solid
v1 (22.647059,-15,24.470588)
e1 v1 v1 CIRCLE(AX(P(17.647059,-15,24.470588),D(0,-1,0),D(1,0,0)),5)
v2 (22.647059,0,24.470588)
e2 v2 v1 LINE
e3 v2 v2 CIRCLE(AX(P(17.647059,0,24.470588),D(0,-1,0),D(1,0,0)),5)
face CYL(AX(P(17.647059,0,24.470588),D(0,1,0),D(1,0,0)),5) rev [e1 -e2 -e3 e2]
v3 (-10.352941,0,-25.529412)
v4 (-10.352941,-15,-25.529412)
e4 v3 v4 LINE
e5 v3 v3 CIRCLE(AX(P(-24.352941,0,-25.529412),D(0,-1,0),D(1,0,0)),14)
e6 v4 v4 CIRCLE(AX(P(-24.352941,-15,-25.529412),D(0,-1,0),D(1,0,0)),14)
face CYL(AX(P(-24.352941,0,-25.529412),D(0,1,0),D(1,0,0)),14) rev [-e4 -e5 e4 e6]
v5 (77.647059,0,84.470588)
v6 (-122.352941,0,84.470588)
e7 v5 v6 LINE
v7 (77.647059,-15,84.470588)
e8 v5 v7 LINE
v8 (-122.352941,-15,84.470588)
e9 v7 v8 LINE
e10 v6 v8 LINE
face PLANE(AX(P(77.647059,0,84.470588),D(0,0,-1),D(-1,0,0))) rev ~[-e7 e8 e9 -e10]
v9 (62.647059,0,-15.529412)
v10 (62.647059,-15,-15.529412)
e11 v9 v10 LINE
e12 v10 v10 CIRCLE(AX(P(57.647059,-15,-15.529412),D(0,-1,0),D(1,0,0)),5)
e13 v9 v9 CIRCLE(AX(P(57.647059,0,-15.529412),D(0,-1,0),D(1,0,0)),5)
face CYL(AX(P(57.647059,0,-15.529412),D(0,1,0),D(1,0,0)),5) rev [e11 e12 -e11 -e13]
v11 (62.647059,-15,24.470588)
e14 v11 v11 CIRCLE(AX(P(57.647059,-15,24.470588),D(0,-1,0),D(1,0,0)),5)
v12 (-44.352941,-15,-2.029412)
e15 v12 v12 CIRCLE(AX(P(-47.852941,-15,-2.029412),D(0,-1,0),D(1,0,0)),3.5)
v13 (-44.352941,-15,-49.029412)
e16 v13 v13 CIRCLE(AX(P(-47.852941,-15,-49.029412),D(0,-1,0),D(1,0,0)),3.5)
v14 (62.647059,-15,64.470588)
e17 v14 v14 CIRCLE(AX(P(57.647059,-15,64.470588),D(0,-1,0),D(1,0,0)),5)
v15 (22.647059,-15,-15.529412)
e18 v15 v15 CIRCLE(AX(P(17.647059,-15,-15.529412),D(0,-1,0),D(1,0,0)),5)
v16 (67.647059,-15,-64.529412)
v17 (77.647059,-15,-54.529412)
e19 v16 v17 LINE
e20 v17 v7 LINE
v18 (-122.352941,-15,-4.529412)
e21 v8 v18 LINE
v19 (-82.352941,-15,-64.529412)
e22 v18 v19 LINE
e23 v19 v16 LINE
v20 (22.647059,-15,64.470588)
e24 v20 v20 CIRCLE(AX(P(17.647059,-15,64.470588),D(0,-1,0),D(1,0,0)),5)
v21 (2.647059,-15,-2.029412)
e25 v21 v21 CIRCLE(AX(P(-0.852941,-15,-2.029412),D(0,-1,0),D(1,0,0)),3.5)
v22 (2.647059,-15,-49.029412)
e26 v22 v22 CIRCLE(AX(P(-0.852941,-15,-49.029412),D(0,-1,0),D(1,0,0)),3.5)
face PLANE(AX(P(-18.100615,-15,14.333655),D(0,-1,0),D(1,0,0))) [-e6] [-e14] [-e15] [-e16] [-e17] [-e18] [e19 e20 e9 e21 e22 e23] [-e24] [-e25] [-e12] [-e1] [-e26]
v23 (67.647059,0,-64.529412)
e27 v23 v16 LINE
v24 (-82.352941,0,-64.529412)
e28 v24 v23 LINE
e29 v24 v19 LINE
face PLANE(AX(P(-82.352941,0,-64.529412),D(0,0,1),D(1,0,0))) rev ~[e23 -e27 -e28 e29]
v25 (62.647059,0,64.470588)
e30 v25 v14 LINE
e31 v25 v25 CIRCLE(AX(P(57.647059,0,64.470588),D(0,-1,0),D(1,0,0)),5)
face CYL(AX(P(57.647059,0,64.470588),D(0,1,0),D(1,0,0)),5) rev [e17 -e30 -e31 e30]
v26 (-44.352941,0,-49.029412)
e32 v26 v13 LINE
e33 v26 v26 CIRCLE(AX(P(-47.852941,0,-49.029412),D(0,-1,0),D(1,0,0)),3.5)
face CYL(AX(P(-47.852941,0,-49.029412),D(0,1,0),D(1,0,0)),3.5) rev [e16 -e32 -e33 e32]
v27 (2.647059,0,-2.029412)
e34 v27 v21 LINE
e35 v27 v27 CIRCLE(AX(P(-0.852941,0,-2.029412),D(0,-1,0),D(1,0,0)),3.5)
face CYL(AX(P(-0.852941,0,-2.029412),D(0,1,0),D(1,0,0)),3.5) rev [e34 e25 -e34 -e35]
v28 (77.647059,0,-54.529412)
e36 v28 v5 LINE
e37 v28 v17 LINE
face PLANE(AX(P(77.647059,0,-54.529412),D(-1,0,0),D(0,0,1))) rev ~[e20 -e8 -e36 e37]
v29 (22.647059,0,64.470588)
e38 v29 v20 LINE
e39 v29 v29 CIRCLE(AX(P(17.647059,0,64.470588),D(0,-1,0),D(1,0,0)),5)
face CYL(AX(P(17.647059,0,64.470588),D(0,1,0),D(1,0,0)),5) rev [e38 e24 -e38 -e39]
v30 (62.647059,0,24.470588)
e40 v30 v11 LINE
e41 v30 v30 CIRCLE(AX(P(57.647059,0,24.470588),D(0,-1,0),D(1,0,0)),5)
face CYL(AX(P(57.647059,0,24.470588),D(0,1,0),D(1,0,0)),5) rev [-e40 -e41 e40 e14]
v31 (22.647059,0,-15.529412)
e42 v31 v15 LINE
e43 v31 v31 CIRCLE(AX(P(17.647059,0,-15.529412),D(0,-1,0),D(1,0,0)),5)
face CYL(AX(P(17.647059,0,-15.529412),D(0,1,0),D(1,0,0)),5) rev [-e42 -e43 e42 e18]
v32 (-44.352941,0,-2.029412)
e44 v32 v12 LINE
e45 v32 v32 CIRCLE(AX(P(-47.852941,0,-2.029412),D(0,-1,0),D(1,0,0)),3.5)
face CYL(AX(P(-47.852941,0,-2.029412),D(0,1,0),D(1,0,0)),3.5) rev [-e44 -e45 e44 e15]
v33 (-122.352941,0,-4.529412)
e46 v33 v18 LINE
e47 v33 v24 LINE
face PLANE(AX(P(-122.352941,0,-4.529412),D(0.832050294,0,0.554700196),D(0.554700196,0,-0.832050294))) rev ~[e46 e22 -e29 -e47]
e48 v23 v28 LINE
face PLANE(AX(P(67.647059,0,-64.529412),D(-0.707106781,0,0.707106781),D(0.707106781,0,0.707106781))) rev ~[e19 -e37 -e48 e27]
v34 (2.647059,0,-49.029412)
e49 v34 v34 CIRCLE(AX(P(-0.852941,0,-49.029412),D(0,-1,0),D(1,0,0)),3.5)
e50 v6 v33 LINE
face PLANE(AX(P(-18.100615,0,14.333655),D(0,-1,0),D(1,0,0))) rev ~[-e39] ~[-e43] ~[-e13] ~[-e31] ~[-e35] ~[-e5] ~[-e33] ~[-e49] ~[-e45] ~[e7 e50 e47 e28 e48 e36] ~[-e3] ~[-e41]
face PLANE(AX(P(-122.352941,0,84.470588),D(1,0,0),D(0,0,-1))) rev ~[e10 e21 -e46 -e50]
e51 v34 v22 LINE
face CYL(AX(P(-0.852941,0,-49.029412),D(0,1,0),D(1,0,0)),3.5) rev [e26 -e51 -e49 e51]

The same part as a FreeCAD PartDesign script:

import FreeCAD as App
import Part
import Sketcher
Q = App.Units.Quantity


def add_polygon(sketch, points):
    """Adds a closed chain of lines whose ends are joined by coincident constraints."""
    first, n = sketch.GeometryCount, len(points)
    for a, b in zip(points, points[1:] + points[:1]):
        sketch.addGeometry(Part.LineSegment(App.Vector(*a, 0), App.Vector(*b, 0)), False)
    for i in range(n):
        sketch.addConstraint(Sketcher.Constraint("Coincident", first + i, 2, first + (i + 1) % n, 1))

doc = App.newDocument("Part")
body = doc.addObject("PartDesign::Body", "Body")

sketch1 = body.newObject("Sketcher::SketchObject", "Sketch")
sketch1.AttachmentSupport = (doc.getObject("XZ_Plane"), [""])
sketch1.MapMode = "FlatFace"
add_polygon(sketch1, [(67.6, -64.5), (77.6, -54.5), (77.6, 84.5), (-122.4, 84.5), (-122.4, -4.5), (-82.4, -64.5)])
sketch1.addGeometry(Part.Circle(App.Vector(-47.9, -49, 0), App.Vector(0, 0, 1), 3.5), False)
sketch1.addGeometry(Part.Circle(App.Vector(-24.4, -25.5, 0), App.Vector(0, 0, 1), 14), False)
sketch1.addGeometry(Part.Circle(App.Vector(-0.9, -49, 0), App.Vector(0, 0, 1), 3.5), False)
sketch1.addGeometry(Part.Circle(App.Vector(-47.9, -2, 0), App.Vector(0, 0, 1), 3.5), False)
sketch1.addGeometry(Part.Circle(App.Vector(-0.9, -2, 0), App.Vector(0, 0, 1), 3.5), False)
sketch1.addGeometry(Part.Circle(App.Vector(17.6, -15.5, 0), App.Vector(0, 0, 1), 5), False)
sketch1.addGeometry(Part.Circle(App.Vector(57.6, -15.5, 0), App.Vector(0, 0, 1), 5), False)
sketch1.addGeometry(Part.Circle(App.Vector(17.6, 24.5, 0), App.Vector(0, 0, 1), 5), False)
sketch1.addGeometry(Part.Circle(App.Vector(57.6, 24.5, 0), App.Vector(0, 0, 1), 5), False)
sketch1.addGeometry(Part.Circle(App.Vector(17.6, 64.5, 0), App.Vector(0, 0, 1), 5), False)
sketch1.addGeometry(Part.Circle(App.Vector(57.6, 64.5, 0), App.Vector(0, 0, 1), 5), False)
sketch1.addConstraint([
    Sketcher.Constraint("Vertical", 1),
    Sketcher.Constraint("Horizontal", 2),
    Sketcher.Constraint("Vertical", 3),
    Sketcher.Constraint("Horizontal", 5),
    Sketcher.Constraint("Equal", 6, 8),
    Sketcher.Constraint("Equal", 8, 9),
    Sketcher.Constraint("Equal", 9, 10),
    Sketcher.Constraint("Equal", 11, 12),
    Sketcher.Constraint("Equal", 12, 13),
    Sketcher.Constraint("Equal", 13, 14),
    Sketcher.Constraint("Equal", 14, 15),
    Sketcher.Constraint("Equal", 15, 16),
    Sketcher.Constraint("Horizontal", 6, 3, 8, 3),
    Sketcher.Constraint("Horizontal", 9, 3, 10, 3),
    Sketcher.Constraint("Horizontal", 11, 3, 12, 3),
    Sketcher.Constraint("Horizontal", 13, 3, 14, 3),
    Sketcher.Constraint("Horizontal", 15, 3, 16, 3),
    Sketcher.Constraint("Vertical", 6, 3, 9, 3),
    Sketcher.Constraint("Vertical", 8, 3, 10, 3),
    Sketcher.Constraint("Vertical", 11, 3, 13, 3),
    Sketcher.Constraint("Vertical", 12, 3, 14, 3),
    Sketcher.Constraint("Vertical", 13, 3, 15, 3),
    Sketcher.Constraint("Vertical", 14, 3, 16, 3),
    Sketcher.Constraint("Diameter", 6, Q("7 mm")),
    Sketcher.Constraint("Diameter", 7, Q("28 mm")),
    Sketcher.Constraint("Diameter", 11, Q("10 mm")),
    Sketcher.Constraint("DistanceX", 2, 2, 2, 1, Q("200 mm")),
    Sketcher.Constraint("DistanceX", 5, 1, 5, 2, Q("150 mm")),
    Sketcher.Constraint("DistanceY", 1, 1, 1, 2, Q("139 mm")),
    Sketcher.Constraint("DistanceY", 3, 2, 3, 1, Q("89 mm")),
    Sketcher.Constraint("Angle", 0, Q("45 deg")),
    Sketcher.Constraint("DistanceX", 6, 3, 8, 3, Q("47 mm")),
    Sketcher.Constraint("DistanceY", 6, 3, 9, 3, Q("47 mm")),
    Sketcher.Constraint("DistanceX", 7, 3, 11, 3, Q("42 mm")),
    Sketcher.Constraint("DistanceY", 7, 3, 11, 3, Q("10 mm")),
    Sketcher.Constraint("DistanceX", 11, 3, 12, 3, Q("40 mm")),
    Sketcher.Constraint("DistanceY", 11, 3, 13, 3, Q("40 mm")),
    Sketcher.Constraint("DistanceY", 13, 3, 15, 3, Q("40 mm")),
    Sketcher.Constraint("DistanceX", 12, 3, 0, 2, Q("20 mm")),
    Sketcher.Constraint("DistanceY", 0, 2, 12, 3, Q("39 mm")),
    Sketcher.Constraint("DistanceX", 4, 2, 7, 3, Q("58 mm")),
    Sketcher.Constraint("DistanceX", 6, 3, 7, 3, Q("23.5 mm")),
    Sketcher.Constraint("DistanceY", 6, 3, 7, 3, Q("23.5 mm")),
    Sketcher.Constraint("DistanceX", 6, 3, -1, 1, Q("47.852941 mm")),
    Sketcher.Constraint("DistanceY", -1, 1, 15, 3, Q("64.470588 mm")),
])
pad1 = body.newObject("PartDesign::Pad", "Pad")
pad1.Profile = sketch1
pad1.Length = 15

doc.recompute()
